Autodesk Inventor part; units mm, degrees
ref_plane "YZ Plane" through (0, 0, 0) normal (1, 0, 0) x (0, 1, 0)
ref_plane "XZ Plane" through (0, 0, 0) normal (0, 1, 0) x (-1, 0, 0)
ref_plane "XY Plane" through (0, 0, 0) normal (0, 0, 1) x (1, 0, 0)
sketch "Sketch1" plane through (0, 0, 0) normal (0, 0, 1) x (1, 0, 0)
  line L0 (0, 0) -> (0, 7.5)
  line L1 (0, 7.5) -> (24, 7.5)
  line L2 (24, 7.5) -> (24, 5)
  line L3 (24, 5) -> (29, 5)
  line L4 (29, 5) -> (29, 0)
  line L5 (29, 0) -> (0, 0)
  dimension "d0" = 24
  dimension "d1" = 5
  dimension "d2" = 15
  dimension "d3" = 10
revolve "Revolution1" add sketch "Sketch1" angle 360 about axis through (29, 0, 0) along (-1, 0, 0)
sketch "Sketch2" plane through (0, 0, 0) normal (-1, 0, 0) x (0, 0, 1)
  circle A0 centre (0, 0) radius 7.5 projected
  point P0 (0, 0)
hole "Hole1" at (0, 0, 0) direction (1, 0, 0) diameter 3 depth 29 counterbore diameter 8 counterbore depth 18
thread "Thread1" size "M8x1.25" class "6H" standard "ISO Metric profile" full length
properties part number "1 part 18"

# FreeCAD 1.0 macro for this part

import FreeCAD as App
import Part
import Sketcher

V = App.Vector
Q = App.Units.Quantity


def add_polygon(sketch, points):
    """Adds a closed chain of lines whose ends are joined by coincident constraints."""
    first, n = sketch.GeometryCount, len(points)
    for a, b in zip(points, points[1:] + points[:1]):
        sketch.addGeometry(Part.LineSegment(App.Vector(*a, 0), App.Vector(*b, 0)), False)
    for i in range(n):
        sketch.addConstraint(Sketcher.Constraint("Coincident", first + i, 2, first + (i + 1) % n, 1))

doc = App.newDocument("Part")
body = doc.addObject("PartDesign::Body", "Body")

# Sketch on XY plane
sketch1 = body.newObject("Sketcher::SketchObject", "Sketch")
sketch1.AttachmentSupport = (doc.getObject("XY_Plane"), [""])
sketch1.MapMode = "FlatFace"
add_polygon(sketch1, [(0, 7.5), (0, 0), (29, 0), (29, 5), (24, 5), (24, 7.5)])  # lines 0-5
sketch1.addConstraint([
    Sketcher.Constraint("Vertical", 0),
    Sketcher.Constraint("Horizontal", 1),
    Sketcher.Constraint("Vertical", 2),
    Sketcher.Constraint("Horizontal", 3),
    Sketcher.Constraint("Vertical", 4),
    Sketcher.Constraint("Horizontal", 5),
    Sketcher.Constraint("Coincident", 0, 2, -1, 1),
    Sketcher.Constraint("Equal", 3, 2),
    Sketcher.Constraint("DistanceX", 3, 2, 3, 1, Q("5 mm")),
    Sketcher.Constraint("DistanceX", 5, 2, 5, 1, Q("24 mm")),
    Sketcher.Constraint("DistanceY", 0, 2, 0, 1, Q("7.5 mm")),
])
revolution = body.newObject("PartDesign::Revolution", "Revolution")
revolution.Profile = sketch1
revolution.ReferenceAxis = (sketch1, ["H_Axis"])
revolution.Angle = 360

# Sketch on YZ plane
sketch2 = body.newObject("Sketcher::SketchObject", "Sketch001")
sketch2.AttachmentSupport = (doc.getObject("YZ_Plane"), [""])
sketch2.MapMode = "FlatFace"
sketch2.addGeometry(Part.Circle(V(0, 0, 0), V(0, 0, 1), 1.5), False)
sketch2.addConstraint([
    Sketcher.Constraint("Coincident", 0, 3, -1, 1),
    Sketcher.Constraint("Diameter", 0, Q("3 mm")),
])
doc.recompute()
hole = body.newObject("PartDesign::Hole", "Hole")
hole.Profile = sketch2
hole.ThreadType = "None"
hole.Diameter = 3
hole.DepthType = "Dimension"
hole.Depth = 29
hole.DrillPoint = "Flat"
hole.HoleCutType = "Counterbore"
hole.HoleCutDiameter = 8
hole.HoleCutDepth = 18
hole.Reversed = True

doc.recompute()
